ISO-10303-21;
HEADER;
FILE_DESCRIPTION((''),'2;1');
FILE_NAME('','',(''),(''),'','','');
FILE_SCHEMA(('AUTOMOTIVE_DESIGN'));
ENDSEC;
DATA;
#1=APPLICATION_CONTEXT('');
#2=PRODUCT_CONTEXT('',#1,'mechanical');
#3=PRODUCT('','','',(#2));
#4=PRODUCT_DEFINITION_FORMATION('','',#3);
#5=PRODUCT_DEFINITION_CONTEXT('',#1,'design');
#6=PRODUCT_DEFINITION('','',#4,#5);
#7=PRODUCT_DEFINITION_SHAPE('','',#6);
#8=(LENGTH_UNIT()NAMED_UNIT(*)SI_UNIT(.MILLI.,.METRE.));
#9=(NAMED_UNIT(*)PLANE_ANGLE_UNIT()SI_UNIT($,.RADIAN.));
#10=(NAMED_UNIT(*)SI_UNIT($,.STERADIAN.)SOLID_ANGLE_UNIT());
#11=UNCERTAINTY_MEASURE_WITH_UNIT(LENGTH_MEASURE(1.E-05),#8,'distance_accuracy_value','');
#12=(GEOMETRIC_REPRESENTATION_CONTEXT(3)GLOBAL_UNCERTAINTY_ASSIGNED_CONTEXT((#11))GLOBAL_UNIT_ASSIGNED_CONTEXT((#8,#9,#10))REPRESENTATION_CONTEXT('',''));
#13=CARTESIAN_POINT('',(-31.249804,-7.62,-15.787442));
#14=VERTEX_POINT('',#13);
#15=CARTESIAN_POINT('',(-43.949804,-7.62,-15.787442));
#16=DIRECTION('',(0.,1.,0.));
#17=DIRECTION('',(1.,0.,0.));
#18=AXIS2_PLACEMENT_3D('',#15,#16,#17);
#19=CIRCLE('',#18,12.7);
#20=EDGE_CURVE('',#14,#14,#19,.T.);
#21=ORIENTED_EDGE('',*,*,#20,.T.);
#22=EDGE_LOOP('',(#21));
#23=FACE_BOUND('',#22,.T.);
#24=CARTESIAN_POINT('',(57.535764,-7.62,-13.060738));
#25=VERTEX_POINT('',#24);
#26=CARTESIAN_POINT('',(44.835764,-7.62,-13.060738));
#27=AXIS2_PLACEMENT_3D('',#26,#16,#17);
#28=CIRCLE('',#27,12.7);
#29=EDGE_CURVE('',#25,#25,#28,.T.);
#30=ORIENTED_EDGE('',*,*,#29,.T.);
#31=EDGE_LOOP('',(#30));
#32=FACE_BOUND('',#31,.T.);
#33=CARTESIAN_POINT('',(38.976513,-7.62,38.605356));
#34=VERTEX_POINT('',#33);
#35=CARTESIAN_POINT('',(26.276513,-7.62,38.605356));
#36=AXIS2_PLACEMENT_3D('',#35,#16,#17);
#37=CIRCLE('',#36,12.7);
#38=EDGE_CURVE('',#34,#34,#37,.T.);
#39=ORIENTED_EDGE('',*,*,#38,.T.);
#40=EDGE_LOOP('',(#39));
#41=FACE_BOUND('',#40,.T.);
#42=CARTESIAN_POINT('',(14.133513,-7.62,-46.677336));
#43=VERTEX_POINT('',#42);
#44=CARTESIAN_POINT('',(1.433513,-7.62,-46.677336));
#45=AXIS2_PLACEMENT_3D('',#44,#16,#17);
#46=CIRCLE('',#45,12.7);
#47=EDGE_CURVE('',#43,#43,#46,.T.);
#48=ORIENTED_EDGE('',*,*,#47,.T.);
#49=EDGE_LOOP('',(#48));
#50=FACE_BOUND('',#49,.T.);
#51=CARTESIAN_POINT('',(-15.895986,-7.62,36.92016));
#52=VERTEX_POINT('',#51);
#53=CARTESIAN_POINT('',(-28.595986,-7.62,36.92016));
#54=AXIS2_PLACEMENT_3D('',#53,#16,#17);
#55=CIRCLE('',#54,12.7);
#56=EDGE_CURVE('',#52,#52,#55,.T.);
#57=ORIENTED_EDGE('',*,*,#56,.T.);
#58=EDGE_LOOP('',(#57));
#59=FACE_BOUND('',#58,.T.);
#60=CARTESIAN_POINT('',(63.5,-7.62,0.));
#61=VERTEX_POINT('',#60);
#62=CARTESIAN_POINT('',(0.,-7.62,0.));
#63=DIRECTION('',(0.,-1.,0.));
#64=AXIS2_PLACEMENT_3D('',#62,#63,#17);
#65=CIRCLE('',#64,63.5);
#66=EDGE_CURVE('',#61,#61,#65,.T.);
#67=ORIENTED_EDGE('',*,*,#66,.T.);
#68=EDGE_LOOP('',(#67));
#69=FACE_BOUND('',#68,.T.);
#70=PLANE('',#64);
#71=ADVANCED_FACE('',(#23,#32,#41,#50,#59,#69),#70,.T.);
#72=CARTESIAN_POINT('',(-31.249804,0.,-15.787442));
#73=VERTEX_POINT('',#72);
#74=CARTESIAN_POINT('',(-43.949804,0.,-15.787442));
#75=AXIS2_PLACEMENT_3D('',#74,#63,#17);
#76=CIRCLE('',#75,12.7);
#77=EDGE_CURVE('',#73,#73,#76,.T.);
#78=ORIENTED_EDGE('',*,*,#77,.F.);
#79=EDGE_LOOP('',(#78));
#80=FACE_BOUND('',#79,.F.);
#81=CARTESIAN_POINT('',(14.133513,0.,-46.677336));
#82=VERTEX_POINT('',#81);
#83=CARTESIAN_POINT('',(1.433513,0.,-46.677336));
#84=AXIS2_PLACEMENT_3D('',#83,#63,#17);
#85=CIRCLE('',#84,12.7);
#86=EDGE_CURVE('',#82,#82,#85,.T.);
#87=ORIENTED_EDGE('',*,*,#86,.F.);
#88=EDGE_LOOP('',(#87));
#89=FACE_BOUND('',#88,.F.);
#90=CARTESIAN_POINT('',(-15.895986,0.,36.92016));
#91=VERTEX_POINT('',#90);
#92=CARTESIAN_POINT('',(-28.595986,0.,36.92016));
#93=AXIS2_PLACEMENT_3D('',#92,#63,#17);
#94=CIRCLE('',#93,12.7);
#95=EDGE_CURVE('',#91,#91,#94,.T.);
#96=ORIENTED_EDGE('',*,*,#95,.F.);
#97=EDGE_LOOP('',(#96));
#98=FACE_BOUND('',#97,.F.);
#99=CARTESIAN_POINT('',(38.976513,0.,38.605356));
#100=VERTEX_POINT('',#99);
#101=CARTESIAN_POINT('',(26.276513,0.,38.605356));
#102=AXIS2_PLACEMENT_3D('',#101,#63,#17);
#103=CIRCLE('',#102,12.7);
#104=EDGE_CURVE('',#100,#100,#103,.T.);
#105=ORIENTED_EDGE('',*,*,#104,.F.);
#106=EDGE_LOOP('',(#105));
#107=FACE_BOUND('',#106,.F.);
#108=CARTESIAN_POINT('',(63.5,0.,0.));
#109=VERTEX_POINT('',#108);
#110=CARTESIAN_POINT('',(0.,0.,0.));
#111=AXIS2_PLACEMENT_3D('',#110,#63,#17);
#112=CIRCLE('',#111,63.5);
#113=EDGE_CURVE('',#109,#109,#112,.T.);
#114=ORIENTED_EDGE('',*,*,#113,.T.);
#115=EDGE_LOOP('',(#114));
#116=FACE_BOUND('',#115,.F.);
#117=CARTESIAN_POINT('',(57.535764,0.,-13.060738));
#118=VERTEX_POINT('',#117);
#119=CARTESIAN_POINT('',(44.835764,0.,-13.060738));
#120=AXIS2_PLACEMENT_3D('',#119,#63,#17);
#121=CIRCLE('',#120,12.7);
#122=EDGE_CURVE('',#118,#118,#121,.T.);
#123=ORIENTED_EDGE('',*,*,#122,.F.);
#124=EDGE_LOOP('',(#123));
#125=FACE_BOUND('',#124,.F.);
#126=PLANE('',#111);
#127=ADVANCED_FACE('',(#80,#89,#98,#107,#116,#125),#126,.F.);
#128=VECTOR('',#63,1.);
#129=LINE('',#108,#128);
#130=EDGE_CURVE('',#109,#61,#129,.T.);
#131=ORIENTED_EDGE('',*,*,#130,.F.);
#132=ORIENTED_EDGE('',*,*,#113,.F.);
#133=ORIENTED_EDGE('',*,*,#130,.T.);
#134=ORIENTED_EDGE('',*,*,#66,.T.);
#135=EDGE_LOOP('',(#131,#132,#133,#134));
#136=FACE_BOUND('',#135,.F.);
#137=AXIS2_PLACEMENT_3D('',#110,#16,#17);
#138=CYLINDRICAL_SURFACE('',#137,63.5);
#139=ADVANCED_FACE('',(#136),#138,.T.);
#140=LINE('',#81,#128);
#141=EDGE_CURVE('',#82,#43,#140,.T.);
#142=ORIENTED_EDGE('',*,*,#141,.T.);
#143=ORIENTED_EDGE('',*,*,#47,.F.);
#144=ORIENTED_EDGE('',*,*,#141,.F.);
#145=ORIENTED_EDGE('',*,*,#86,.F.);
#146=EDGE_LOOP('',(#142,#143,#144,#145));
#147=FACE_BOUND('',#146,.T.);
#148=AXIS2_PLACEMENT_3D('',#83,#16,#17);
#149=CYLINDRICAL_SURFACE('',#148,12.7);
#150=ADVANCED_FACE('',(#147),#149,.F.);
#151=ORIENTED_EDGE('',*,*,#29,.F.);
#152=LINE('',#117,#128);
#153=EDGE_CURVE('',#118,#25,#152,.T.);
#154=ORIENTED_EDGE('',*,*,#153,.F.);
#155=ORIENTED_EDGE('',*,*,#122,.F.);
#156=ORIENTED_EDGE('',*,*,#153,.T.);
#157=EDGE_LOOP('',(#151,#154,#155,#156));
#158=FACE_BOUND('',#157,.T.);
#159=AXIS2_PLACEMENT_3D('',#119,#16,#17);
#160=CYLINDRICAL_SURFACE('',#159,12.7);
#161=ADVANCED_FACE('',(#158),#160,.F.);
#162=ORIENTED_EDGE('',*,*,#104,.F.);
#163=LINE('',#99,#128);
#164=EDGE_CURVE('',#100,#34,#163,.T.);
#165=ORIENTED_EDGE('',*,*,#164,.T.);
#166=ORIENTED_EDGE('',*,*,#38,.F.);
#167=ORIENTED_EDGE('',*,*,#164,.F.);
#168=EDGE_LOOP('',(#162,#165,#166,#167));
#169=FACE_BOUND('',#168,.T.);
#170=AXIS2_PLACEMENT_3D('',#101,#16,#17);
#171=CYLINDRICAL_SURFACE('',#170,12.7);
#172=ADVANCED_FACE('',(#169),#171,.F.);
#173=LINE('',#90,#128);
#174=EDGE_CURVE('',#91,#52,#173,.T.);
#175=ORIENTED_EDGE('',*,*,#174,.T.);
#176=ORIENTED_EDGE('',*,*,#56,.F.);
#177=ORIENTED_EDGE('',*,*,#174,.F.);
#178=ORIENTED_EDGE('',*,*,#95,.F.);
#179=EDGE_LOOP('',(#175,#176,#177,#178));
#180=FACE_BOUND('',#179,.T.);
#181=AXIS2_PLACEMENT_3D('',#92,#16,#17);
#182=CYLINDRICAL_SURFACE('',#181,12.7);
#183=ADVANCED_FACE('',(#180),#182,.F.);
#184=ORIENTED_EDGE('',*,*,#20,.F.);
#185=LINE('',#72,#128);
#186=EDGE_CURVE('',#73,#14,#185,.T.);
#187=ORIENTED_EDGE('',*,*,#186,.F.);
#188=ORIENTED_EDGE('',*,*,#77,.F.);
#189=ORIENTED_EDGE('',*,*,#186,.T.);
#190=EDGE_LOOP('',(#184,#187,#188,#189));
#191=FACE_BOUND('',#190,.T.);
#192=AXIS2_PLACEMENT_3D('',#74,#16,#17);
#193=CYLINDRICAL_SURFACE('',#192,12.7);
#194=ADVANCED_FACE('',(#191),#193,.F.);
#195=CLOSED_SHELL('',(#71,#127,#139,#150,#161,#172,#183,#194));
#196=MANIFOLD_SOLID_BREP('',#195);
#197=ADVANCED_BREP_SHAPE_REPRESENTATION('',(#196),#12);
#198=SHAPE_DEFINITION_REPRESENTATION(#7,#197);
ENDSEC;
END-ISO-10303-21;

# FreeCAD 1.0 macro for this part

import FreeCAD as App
import Part
import Sketcher

V = App.Vector
Q = App.Units.Quantity

doc = App.newDocument("Part")
body = doc.addObject("PartDesign::Body", "Body")

sketch1 = body.newObject("Sketcher::SketchObject", "Sketch")
sketch1.AttachmentSupport = (doc.getObject("XZ_Plane"), [""])
sketch1.MapMode = "FlatFace"
sketch1.addGeometry(Part.Circle(V(0, 0, 0), V(0, 0, 1), 64), False)
sketch1.addConstraint([
    Sketcher.Constraint("Coincident", 0, 3, -1, 1),
    Sketcher.Constraint("Diameter", 0, Q("5 in")),
])
pad1 = body.newObject("PartDesign::Pad", "Pad")
pad1.Profile = sketch1
pad1.Length = Q("0.3 in")

sketch2 = body.newObject("Sketcher::SketchObject", "Sketch001")
sketch2.AttachmentSupport = (doc.getObject("XZ_Plane"), [""])
sketch2.MapMode = "FlatFace"
sketch2.addGeometry([
    Part.Circle(V(-29, 37, 0), V(0, 0, 1), 13),
    Part.Circle(V(-44, -16, 0), V(0, 0, 1), 13),
    Part.Circle(V(1, -47, 0), V(0, 0, 1), 13),
    Part.Circle(V(45, -13, 0), V(0, 0, 1), 13),
    Part.Circle(V(26, 39, 0), V(0, 0, 1), 13),
], False)
sketch2.addConstraint([
    Sketcher.Constraint("Equal", 0, 1),
    Sketcher.Constraint("Equal", 1, 2),
    Sketcher.Constraint("Equal", 2, 3),
    Sketcher.Constraint("Equal", 3, 4),
    Sketcher.Constraint("Diameter", 0, Q("1 in")),
    Sketcher.Constraint("DistanceX", 0, 3, 2, 3, Q("30.029499 mm")),
    Sketcher.Constraint("DistanceY", 3, 3, 0, 3, Q("49.980898 mm")),
    Sketcher.Constraint("DistanceX", 0, 3, 4, 3, Q("54.872499 mm")),
    Sketcher.Constraint("DistanceY", -1, 1, 0, 3, Q("36.92016 mm")),
    Sketcher.Constraint("DistanceX", 2, 3, 3, 3, Q("43.402251 mm")),
    Sketcher.Constraint("DistanceY", 2, 3, 4, 3, Q("85.282692 mm")),
    Sketcher.Constraint("DistanceX", 0, 3, -1, 1, Q("28.595986 mm")),
    Sketcher.Constraint("DistanceX", 1, 3, -1, 1, Q("43.949804 mm")),
    Sketcher.Constraint("DistanceY", 1, 3, -1, 1, Q("15.787442 mm")),
    Sketcher.Constraint("DistanceY", 2, 3, -1, 1, Q("46.677336 mm")),
])
pocket1 = body.newObject("PartDesign::Pocket", "Pocket")
pocket1.Profile = sketch2
pocket1.Type = "ThroughAll"
pocket1.Reversed = True

doc.recompute()
